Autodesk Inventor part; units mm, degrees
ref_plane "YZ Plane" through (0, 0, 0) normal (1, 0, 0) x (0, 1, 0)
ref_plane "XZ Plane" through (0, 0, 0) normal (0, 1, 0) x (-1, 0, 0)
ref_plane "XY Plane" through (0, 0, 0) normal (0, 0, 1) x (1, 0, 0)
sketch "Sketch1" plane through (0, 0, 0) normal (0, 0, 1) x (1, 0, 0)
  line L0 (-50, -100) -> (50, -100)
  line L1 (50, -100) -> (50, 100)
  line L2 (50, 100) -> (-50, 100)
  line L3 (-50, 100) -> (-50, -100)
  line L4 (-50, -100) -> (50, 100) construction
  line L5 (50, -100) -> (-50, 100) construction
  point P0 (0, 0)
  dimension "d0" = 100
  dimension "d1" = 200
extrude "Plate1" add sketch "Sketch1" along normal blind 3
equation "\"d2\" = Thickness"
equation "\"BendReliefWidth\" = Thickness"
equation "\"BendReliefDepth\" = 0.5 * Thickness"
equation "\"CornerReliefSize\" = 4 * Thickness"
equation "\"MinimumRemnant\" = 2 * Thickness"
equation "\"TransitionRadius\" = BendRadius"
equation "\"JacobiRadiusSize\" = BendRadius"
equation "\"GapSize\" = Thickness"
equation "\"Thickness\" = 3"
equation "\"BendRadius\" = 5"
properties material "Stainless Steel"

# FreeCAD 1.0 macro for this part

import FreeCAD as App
import Part
import Sketcher

V = App.Vector

doc = App.newDocument("Part")
body = doc.addObject("PartDesign::Body", "Body")

# Sketch on XY plane
sketch1 = doc.addObject("Sketcher::SketchObject", "Sketch")
body.addObject(sketch1)
sketch1.AttachmentSupport = (doc.XY_Plane, [""])
sketch1.MapMode = "FlatFace"
sketch1.addGeometry(Part.LineSegment(V(-50, 100, 0), V(-50, -100, 0)), False)
sketch1.addGeometry(Part.LineSegment(V(-50, -100, 0), V(50, -100, 0)), False)
sketch1.addGeometry(Part.LineSegment(V(50, -100, 0), V(50, 100, 0)), False)
sketch1.addGeometry(Part.LineSegment(V(50, 100, 0), V(-50, 100, 0)), False)
sketch1.addConstraint(Sketcher.Constraint("Coincident", 0, 2, 1, 1))
sketch1.addConstraint(Sketcher.Constraint("Coincident", 1, 2, 2, 1))
sketch1.addConstraint(Sketcher.Constraint("Coincident", 2, 2, 3, 1))
sketch1.addConstraint(Sketcher.Constraint("Coincident", 3, 2, 0, 1))
sketch1.addConstraint(Sketcher.Constraint("Vertical", 0))
sketch1.addConstraint(Sketcher.Constraint("Horizontal", 1))
sketch1.addConstraint(Sketcher.Constraint("Vertical", 2))
sketch1.addConstraint(Sketcher.Constraint("Horizontal", 3))
sketch1.addConstraint(Sketcher.Constraint("Symmetric", 0, 2, 2, 2, -1, 1))
sketch1.addConstraint(Sketcher.Constraint("DistanceX", 1, 1, 1, 2, 100.0))
sketch1.addConstraint(Sketcher.Constraint("DistanceY", 0, 2, 0, 1, 200.0))
pad1 = doc.addObject("PartDesign::Pad", "Pad")
body.addObject(pad1)
pad1.Profile = sketch1
pad1.Length = 3

doc.recompute()
